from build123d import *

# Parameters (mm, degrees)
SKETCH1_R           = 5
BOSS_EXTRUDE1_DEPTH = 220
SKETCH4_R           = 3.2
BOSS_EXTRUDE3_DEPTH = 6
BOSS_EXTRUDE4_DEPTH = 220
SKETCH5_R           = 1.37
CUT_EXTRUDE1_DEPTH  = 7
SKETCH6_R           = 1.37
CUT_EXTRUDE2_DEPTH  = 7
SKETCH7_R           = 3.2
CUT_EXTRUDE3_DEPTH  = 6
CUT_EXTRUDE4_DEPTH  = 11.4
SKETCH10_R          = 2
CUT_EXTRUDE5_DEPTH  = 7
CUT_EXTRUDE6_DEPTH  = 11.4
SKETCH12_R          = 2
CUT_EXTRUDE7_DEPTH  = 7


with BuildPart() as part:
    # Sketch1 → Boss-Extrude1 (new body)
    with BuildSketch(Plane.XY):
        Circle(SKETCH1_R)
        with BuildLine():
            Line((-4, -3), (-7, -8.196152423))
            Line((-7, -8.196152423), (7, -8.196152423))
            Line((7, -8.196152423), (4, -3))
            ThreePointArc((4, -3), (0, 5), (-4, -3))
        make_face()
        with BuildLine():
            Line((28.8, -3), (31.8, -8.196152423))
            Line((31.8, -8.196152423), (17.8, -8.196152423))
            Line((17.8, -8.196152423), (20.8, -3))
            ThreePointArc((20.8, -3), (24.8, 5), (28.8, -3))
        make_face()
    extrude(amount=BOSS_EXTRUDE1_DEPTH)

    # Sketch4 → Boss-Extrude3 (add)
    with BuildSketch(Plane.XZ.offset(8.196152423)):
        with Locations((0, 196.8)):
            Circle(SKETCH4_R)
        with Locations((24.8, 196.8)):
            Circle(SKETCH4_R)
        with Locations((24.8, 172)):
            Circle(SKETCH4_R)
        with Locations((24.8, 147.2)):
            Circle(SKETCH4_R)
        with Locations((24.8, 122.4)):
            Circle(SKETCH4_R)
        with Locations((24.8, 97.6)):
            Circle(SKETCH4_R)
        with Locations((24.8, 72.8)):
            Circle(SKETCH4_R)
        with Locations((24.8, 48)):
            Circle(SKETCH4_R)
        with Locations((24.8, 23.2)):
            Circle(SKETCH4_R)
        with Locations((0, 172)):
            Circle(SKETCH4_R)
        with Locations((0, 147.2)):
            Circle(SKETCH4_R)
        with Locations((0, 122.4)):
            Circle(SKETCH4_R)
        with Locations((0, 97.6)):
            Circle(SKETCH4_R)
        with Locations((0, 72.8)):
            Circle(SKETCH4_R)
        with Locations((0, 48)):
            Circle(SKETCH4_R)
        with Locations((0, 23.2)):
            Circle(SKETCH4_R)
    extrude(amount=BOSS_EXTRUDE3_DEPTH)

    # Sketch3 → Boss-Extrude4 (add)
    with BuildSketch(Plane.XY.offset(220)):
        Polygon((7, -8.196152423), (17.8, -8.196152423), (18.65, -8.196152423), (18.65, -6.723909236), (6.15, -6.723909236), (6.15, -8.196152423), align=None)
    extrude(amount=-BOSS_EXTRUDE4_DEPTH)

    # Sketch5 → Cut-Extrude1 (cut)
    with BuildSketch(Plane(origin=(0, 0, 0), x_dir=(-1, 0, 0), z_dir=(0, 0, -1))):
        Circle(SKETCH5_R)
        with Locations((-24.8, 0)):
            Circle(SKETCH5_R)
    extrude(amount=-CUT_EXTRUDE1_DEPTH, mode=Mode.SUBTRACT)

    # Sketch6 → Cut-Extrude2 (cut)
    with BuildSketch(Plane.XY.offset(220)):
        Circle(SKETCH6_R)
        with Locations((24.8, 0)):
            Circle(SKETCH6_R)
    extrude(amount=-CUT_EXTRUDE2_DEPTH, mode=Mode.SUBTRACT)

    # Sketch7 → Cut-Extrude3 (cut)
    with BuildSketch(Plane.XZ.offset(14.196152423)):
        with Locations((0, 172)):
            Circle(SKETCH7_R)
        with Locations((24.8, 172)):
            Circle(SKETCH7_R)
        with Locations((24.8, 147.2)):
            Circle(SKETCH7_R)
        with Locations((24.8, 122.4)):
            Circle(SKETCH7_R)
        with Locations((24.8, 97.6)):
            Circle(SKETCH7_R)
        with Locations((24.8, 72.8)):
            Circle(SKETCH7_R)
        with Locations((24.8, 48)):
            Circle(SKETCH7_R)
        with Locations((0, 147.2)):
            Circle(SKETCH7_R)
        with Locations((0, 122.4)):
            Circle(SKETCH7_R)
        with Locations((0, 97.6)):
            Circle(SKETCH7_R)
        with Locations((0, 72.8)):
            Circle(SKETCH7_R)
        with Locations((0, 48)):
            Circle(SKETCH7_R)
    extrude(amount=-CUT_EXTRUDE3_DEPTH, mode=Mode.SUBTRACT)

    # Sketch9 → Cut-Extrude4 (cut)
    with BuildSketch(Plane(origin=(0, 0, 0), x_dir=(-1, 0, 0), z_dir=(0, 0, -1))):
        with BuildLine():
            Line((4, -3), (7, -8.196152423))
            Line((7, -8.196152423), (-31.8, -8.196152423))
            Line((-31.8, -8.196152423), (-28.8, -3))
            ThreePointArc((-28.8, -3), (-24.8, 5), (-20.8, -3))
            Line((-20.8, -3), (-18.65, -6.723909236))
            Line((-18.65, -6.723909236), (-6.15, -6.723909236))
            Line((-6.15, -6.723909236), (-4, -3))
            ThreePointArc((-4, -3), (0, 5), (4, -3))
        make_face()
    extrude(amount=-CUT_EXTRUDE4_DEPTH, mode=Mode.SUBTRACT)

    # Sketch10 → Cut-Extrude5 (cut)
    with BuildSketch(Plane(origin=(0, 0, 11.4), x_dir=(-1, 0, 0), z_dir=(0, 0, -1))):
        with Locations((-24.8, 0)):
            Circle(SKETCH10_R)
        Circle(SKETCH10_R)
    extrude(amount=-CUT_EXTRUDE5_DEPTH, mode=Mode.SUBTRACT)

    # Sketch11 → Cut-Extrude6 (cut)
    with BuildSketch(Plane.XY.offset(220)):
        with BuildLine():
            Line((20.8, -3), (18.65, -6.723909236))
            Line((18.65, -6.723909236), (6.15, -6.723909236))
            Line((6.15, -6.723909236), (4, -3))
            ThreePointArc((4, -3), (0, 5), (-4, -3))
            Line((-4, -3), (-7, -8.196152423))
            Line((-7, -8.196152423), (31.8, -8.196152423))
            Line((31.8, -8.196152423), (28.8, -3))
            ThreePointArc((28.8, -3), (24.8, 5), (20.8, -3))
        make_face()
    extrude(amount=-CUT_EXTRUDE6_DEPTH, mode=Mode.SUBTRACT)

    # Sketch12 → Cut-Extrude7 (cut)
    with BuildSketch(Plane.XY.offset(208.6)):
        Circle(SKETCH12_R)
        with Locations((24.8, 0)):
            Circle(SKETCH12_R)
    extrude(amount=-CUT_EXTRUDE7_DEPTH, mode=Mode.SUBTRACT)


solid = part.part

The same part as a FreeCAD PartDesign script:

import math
import FreeCAD as App
import Part
import Sketcher
from FreeCAD import Vector
Q = App.Units.Quantity

doc = App.newDocument("Part")
body = doc.addObject("PartDesign::Body", "Body")
body.AllowCompound = True

# Sketch on XY plane
sketch1 = body.newObject("Sketcher::SketchObject", "Sketch")
sketch1.AttachmentSupport = (doc.getObject("XY_Plane"), [""])
sketch1.MapMode = "FlatFace"
sketch1.addGeometry(Part.LineSegment(Vector(-4, -3, 0), Vector(-7, -8, 0)), False)
sketch1.addGeometry(Part.LineSegment(Vector(-7, -8, 0), Vector(7, -8, 0)), False)
sketch1.addGeometry(Part.LineSegment(Vector(7, -8, 0), Vector(4, -3, 0)), False)
sketch1.addGeometry(Part.ArcOfCircle(Part.Circle(Vector(0, 0, 0), Vector(0, 0, 1), 5), math.radians(-37), math.radians(217)), False)
sketch1.addGeometry(Part.LineSegment(Vector(32, -8, 0), Vector(29, -3, 0)), False)
sketch1.addGeometry(Part.ArcOfCircle(Part.Circle(Vector(25, 0, 0), Vector(0, 0, 1), 5), math.radians(-37), math.radians(217)), False)
sketch1.addGeometry(Part.LineSegment(Vector(21, -3, 0), Vector(18, -8, 0)), False)
sketch1.addGeometry(Part.LineSegment(Vector(18, -8, 0), Vector(32, -8, 0)), False)
sketch1.addConstraint(Sketcher.Constraint("Coincident", 0, 2, 1, 1))
sketch1.addConstraint(Sketcher.Constraint("Coincident", 1, 2, 2, 1))
sketch1.addConstraint(Sketcher.Constraint("Coincident", 2, 2, 3, 1))
sketch1.addConstraint(Sketcher.Constraint("Coincident", 3, 2, 0, 1))
sketch1.addConstraint(Sketcher.Constraint("Coincident", 4, 2, 5, 1))
sketch1.addConstraint(Sketcher.Constraint("Coincident", 5, 2, 6, 1))
sketch1.addConstraint(Sketcher.Constraint("Coincident", 6, 2, 7, 1))
sketch1.addConstraint(Sketcher.Constraint("Coincident", 7, 2, 4, 1))
sketch1.addConstraint(Sketcher.Constraint("Horizontal", 1))
sketch1.addConstraint(Sketcher.Constraint("Horizontal", 7))
sketch1.addConstraint(Sketcher.Constraint("Coincident", 3, 3, -1, 1))
sketch1.addConstraint(Sketcher.Constraint("Equal", 3, 5))
sketch1.addConstraint(Sketcher.Constraint("PointOnObject", 5, 3, -1))
sketch1.addConstraint(Sketcher.Constraint("Parallel", 2, 4))
sketch1.addConstraint(Sketcher.Constraint("Parallel", 0, 6))
sketch1.addConstraint(Sketcher.Constraint("Horizontal", 2, 2, 3, 2))
sketch1.addConstraint(Sketcher.Constraint("Horizontal", 3, 2, 4, 2))
sketch1.addConstraint(Sketcher.Constraint("Horizontal", 4, 2, 5, 2))
sketch1.addConstraint(Sketcher.Constraint("Horizontal", 1, 2, 6, 2))
sketch1.addConstraint(Sketcher.Constraint("Equal", 0, 2))
sketch1.addConstraint(Sketcher.Constraint("Radius", 3, Q("5 mm")))
sketch1.addConstraint(Sketcher.Constraint("DistanceX", 1, 1, 1, 2, Q("14 mm")))
sketch1.addConstraint(Sketcher.Constraint("Angle", 0, Q("-120 deg")))
sketch1.addConstraint(Sketcher.Constraint("Distance", 0, Q("6 mm")))
sketch1.addConstraint(Sketcher.Constraint("DistanceX", -1, 1, 5, 3, Q("24.8 mm")))
pad1 = body.newObject("PartDesign::Pad", "Pad")
pad1.Profile = sketch1
pad1.Length = 220

# Sketch on XZ plane
sketch2 = body.newObject("Sketcher::SketchObject", "Sketch001")
sketch2.AttachmentSupport = (doc.getObject("XZ_Plane"), [""])
sketch2.MapMode = "FlatFace"
sketch2.AttachmentOffset = App.Placement(Vector(0, 0, 8.196152), App.Rotation())
sketch2.addGeometry(Part.Circle(Vector(0, 196.8, 0), Vector(0, 0, 1), 3.2), False)
sketch2.addGeometry(Part.Circle(Vector(24.8, 196.8, 0), Vector(0, 0, 1), 3.2), False)
sketch2.addGeometry(Part.Circle(Vector(24.8, 172, 0), Vector(0, 0, 1), 3.2), False)
sketch2.addGeometry(Part.Circle(Vector(24.8, 147.2, 0), Vector(0, 0, 1), 3.2), False)
sketch2.addGeometry(Part.Circle(Vector(24.8, 122.4, 0), Vector(0, 0, 1), 3.2), False)
sketch2.addGeometry(Part.Circle(Vector(24.8, 97.6, 0), Vector(0, 0, 1), 3.2), False)
sketch2.addGeometry(Part.Circle(Vector(24.8, 72.8, 0), Vector(0, 0, 1), 3.2), False)
sketch2.addGeometry(Part.Circle(Vector(24.8, 48, 0), Vector(0, 0, 1), 3.2), False)
sketch2.addGeometry(Part.Circle(Vector(24.8, 23.2, 0), Vector(0, 0, 1), 3.2), False)
sketch2.addGeometry(Part.Circle(Vector(0, 172, 0), Vector(0, 0, 1), 3.2), False)
sketch2.addGeometry(Part.Circle(Vector(0, 147.2, 0), Vector(0, 0, 1), 3.2), False)
sketch2.addGeometry(Part.Circle(Vector(0, 122.4, 0), Vector(0, 0, 1), 3.2), False)
sketch2.addGeometry(Part.Circle(Vector(0, 97.6, 0), Vector(0, 0, 1), 3.2), False)
sketch2.addGeometry(Part.Circle(Vector(0, 72.8, 0), Vector(0, 0, 1), 3.2), False)
sketch2.addGeometry(Part.Circle(Vector(0, 48, 0), Vector(0, 0, 1), 3.2), False)
sketch2.addGeometry(Part.Circle(Vector(0, 23.2, 0), Vector(0, 0, 1), 3.2), False)
sketch2.addConstraint(Sketcher.Constraint("Equal", 0, 1))
sketch2.addConstraint(Sketcher.Constraint("Equal", 1, 2))
sketch2.addConstraint(Sketcher.Constraint("Equal", 2, 3))
sketch2.addConstraint(Sketcher.Constraint("Equal", 3, 4))
sketch2.addConstraint(Sketcher.Constraint("Equal", 4, 5))
sketch2.addConstraint(Sketcher.Constraint("Equal", 5, 6))
sketch2.addConstraint(Sketcher.Constraint("Equal", 6, 7))
sketch2.addConstraint(Sketcher.Constraint("Equal", 7, 8))
sketch2.addConstraint(Sketcher.Constraint("Equal", 8, 9))
sketch2.addConstraint(Sketcher.Constraint("Equal", 9, 10))
sketch2.addConstraint(Sketcher.Constraint("Equal", 10, 11))
sketch2.addConstraint(Sketcher.Constraint("Equal", 11, 12))
sketch2.addConstraint(Sketcher.Constraint("Equal", 12, 13))
sketch2.addConstraint(Sketcher.Constraint("Equal", 13, 14))
sketch2.addConstraint(Sketcher.Constraint("Equal", 14, 15))
sketch2.addConstraint(Sketcher.Constraint("PointOnObject", 0, 3, -2))
sketch2.addConstraint(Sketcher.Constraint("PointOnObject", 9, 3, -2))
sketch2.addConstraint(Sketcher.Constraint("PointOnObject", 10, 3, -2))
sketch2.addConstraint(Sketcher.Constraint("PointOnObject", 11, 3, -2))
sketch2.addConstraint(Sketcher.Constraint("PointOnObject", 12, 3, -2))
sketch2.addConstraint(Sketcher.Constraint("PointOnObject", 13, 3, -2))
sketch2.addConstraint(Sketcher.Constraint("PointOnObject", 14, 3, -2))
sketch2.addConstraint(Sketcher.Constraint("PointOnObject", 15, 3, -2))
sketch2.addConstraint(Sketcher.Constraint("Horizontal", 0, 3, 1, 3))
sketch2.addConstraint(Sketcher.Constraint("Horizontal", 2, 3, 9, 3))
sketch2.addConstraint(Sketcher.Constraint("Horizontal", 3, 3, 10, 3))
sketch2.addConstraint(Sketcher.Constraint("Horizontal", 4, 3, 11, 3))
sketch2.addConstraint(Sketcher.Constraint("Horizontal", 5, 3, 12, 3))
sketch2.addConstraint(Sketcher.Constraint("Horizontal", 6, 3, 13, 3))
sketch2.addConstraint(Sketcher.Constraint("Horizontal", 7, 3, 14, 3))
sketch2.addConstraint(Sketcher.Constraint("Horizontal", 8, 3, 15, 3))
sketch2.addConstraint(Sketcher.Constraint("Vertical", 1, 3, 2, 3))
sketch2.addConstraint(Sketcher.Constraint("Vertical", 2, 3, 3, 3))
sketch2.addConstraint(Sketcher.Constraint("Vertical", 3, 3, 4, 3))
sketch2.addConstraint(Sketcher.Constraint("Vertical", 4, 3, 5, 3))
sketch2.addConstraint(Sketcher.Constraint("Vertical", 5, 3, 6, 3))
sketch2.addConstraint(Sketcher.Constraint("Vertical", 6, 3, 7, 3))
sketch2.addConstraint(Sketcher.Constraint("Vertical", 7, 3, 8, 3))
sketch2.addConstraint(Sketcher.Constraint("Diameter", 0, Q("6.4 mm")))
sketch2.addConstraint(Sketcher.Constraint("DistanceY", -1, 1, 2, 3, Q("172 mm")))
sketch2.addConstraint(Sketcher.Constraint("DistanceY", -1, 1, 7, 3, Q("48 mm")))
sketch2.addConstraint(Sketcher.Constraint("DistanceY", 6, 3, 1, 3, Q("124 mm")))
sketch2.addConstraint(Sketcher.Constraint("DistanceY", 8, 3, 3, 3, Q("124 mm")))
sketch2.addConstraint(Sketcher.Constraint("DistanceY", -1, 1, 0, 3, Q("196.8 mm")))
sketch2.addConstraint(Sketcher.Constraint("DistanceX", -1, 1, 1, 3, Q("24.8 mm")))
sketch2.addConstraint(Sketcher.Constraint("DistanceY", -1, 1, 3, 3, Q("147.2 mm")))
sketch2.addConstraint(Sketcher.Constraint("DistanceY", -1, 1, 4, 3, Q("122.4 mm")))
sketch2.addConstraint(Sketcher.Constraint("DistanceY", -1, 1, 5, 3, Q("97.6 mm")))
pad2 = body.newObject("PartDesign::Pad", "Pad001")
pad2.Profile = sketch2
pad2.Length = 6

# Sketch on XY plane
sketch3 = body.newObject("Sketcher::SketchObject", "Sketch002")
sketch3.AttachmentSupport = (doc.getObject("XY_Plane"), [""])
sketch3.MapMode = "FlatFace"
sketch3.AttachmentOffset = App.Placement(Vector(0, 0, 220), App.Rotation())
sketch3.addGeometry(Part.LineSegment(Vector(18.6, -8.2, 0), Vector(18.6, -6.7, 0)), False)
sketch3.addGeometry(Part.LineSegment(Vector(18.6, -6.7, 0), Vector(6.2, -6.7, 0)), False)
sketch3.addGeometry(Part.LineSegment(Vector(6.2, -6.7, 0), Vector(6.2, -8.2, 0)), False)
sketch3.addGeometry(Part.LineSegment(Vector(6.2, -8.2, 0), Vector(18.6, -8.2, 0)), False)
sketch3.addConstraint(Sketcher.Constraint("Coincident", 0, 2, 1, 1))
sketch3.addConstraint(Sketcher.Constraint("Coincident", 1, 2, 2, 1))
sketch3.addConstraint(Sketcher.Constraint("Coincident", 2, 2, 3, 1))
sketch3.addConstraint(Sketcher.Constraint("Coincident", 3, 2, 0, 1))
sketch3.addConstraint(Sketcher.Constraint("Vertical", 0))
sketch3.addConstraint(Sketcher.Constraint("Horizontal", 1))
sketch3.addConstraint(Sketcher.Constraint("Vertical", 2))
sketch3.addConstraint(Sketcher.Constraint("Horizontal", 3))
sketch3.addConstraint(Sketcher.Constraint("DistanceX", 1, 2, 1, 1, Q("12.5 mm")))
sketch3.addConstraint(Sketcher.Constraint("DistanceX", -1, 1, 0, 2, Q("18.65 mm")))
sketch3.addConstraint(Sketcher.Constraint("DistanceY", 0, 1, 0, 2, Q("1.472243 mm")))
sketch3.addConstraint(Sketcher.Constraint("DistanceY", 0, 2, -1, 1, Q("6.723909 mm")))
pad3 = body.newObject("PartDesign::Pad", "Pad002")
pad3.Profile = sketch3
pad3.Length = 220
pad3.Reversed = True

# Sketch on XY plane
sketch4 = body.newObject("Sketcher::SketchObject", "Sketch003")
sketch4.AttachmentSupport = (doc.getObject("XY_Plane"), [""])
sketch4.MapMode = "FlatFace"
sketch4.addGeometry(Part.Circle(Vector(0, 0, 0), Vector(0, 0, 1), 1.4), False)
sketch4.addGeometry(Part.Circle(Vector(24.8, 0, 0), Vector(0, 0, 1), 1.4), False)
sketch4.addConstraint(Sketcher.Constraint("Coincident", 0, 3, -1, 1))
sketch4.addConstraint(Sketcher.Constraint("Equal", 0, 1))
sketch4.addConstraint(Sketcher.Constraint("PointOnObject", 1, 3, -1))
sketch4.addConstraint(Sketcher.Constraint("Diameter", 0, Q("2.74 mm")))
sketch4.addConstraint(Sketcher.Constraint("DistanceX", -1, 1, 1, 3, Q("24.8 mm")))
pocket1 = body.newObject("PartDesign::Pocket", "Pocket")
pocket1.Profile = sketch4
pocket1.Length = 7
pocket1.Reversed = True

# Sketch on XY plane
sketch5 = body.newObject("Sketcher::SketchObject", "Sketch004")
sketch5.AttachmentSupport = (doc.getObject("XY_Plane"), [""])
sketch5.MapMode = "FlatFace"
sketch5.AttachmentOffset = App.Placement(Vector(0, 0, 220), App.Rotation())
sketch5.addGeometry(Part.Circle(Vector(0, 0, 0), Vector(0, 0, 1), 1.4), False)
sketch5.addGeometry(Part.Circle(Vector(24.8, 0, 0), Vector(0, 0, 1), 1.4), False)
sketch5.addConstraint(Sketcher.Constraint("Coincident", 0, 3, -1, 1))
sketch5.addConstraint(Sketcher.Constraint("Equal", 0, 1))
sketch5.addConstraint(Sketcher.Constraint("PointOnObject", 1, 3, -1))
sketch5.addConstraint(Sketcher.Constraint("Diameter", 0, Q("2.74 mm")))
sketch5.addConstraint(Sketcher.Constraint("DistanceX", -1, 1, 1, 3, Q("24.8 mm")))
pocket2 = body.newObject("PartDesign::Pocket", "Pocket001")
pocket2.Profile = sketch5
pocket2.Length = 7

# Sketch on XZ plane
sketch6 = body.newObject("Sketcher::SketchObject", "Sketch005")
sketch6.AttachmentSupport = (doc.getObject("XZ_Plane"), [""])
sketch6.MapMode = "FlatFace"
sketch6.AttachmentOffset = App.Placement(Vector(0, 0, 14.196152), App.Rotation())
sketch6.addGeometry(Part.Circle(Vector(0, 172, 0), Vector(0, 0, 1), 3.2), False)
sketch6.addGeometry(Part.Circle(Vector(24.8, 172, 0), Vector(0, 0, 1), 3.2), False)
sketch6.addGeometry(Part.Circle(Vector(24.8, 147.2, 0), Vector(0, 0, 1), 3.2), False)
sketch6.addGeometry(Part.Circle(Vector(24.8, 122.4, 0), Vector(0, 0, 1), 3.2), False)
sketch6.addGeometry(Part.Circle(Vector(24.8, 97.6, 0), Vector(0, 0, 1), 3.2), False)
sketch6.addGeometry(Part.Circle(Vector(24.8, 72.8, 0), Vector(0, 0, 1), 3.2), False)
sketch6.addGeometry(Part.Circle(Vector(24.8, 48, 0), Vector(0, 0, 1), 3.2), False)
sketch6.addGeometry(Part.Circle(Vector(0, 147.2, 0), Vector(0, 0, 1), 3.2), False)
sketch6.addGeometry(Part.Circle(Vector(0, 122.4, 0), Vector(0, 0, 1), 3.2), False)
sketch6.addGeometry(Part.Circle(Vector(0, 97.6, 0), Vector(0, 0, 1), 3.2), False)
sketch6.addGeometry(Part.Circle(Vector(0, 72.8, 0), Vector(0, 0, 1), 3.2), False)
sketch6.addGeometry(Part.Circle(Vector(0, 48, 0), Vector(0, 0, 1), 3.2), False)
sketch6.addConstraint(Sketcher.Constraint("Equal", 0, 1))
sketch6.addConstraint(Sketcher.Constraint("Equal", 1, 2))
sketch6.addConstraint(Sketcher.Constraint("Equal", 2, 3))
sketch6.addConstraint(Sketcher.Constraint("Equal", 3, 4))
sketch6.addConstraint(Sketcher.Constraint("Equal", 4, 5))
sketch6.addConstraint(Sketcher.Constraint("Equal", 5, 6))
sketch6.addConstraint(Sketcher.Constraint("Equal", 6, 7))
sketch6.addConstraint(Sketcher.Constraint("Equal", 7, 8))
sketch6.addConstraint(Sketcher.Constraint("Equal", 8, 9))
sketch6.addConstraint(Sketcher.Constraint("Equal", 9, 10))
sketch6.addConstraint(Sketcher.Constraint("Equal", 10, 11))
sketch6.addConstraint(Sketcher.Constraint("PointOnObject", 0, 3, -2))
sketch6.addConstraint(Sketcher.Constraint("PointOnObject", 7, 3, -2))
sketch6.addConstraint(Sketcher.Constraint("PointOnObject", 8, 3, -2))
sketch6.addConstraint(Sketcher.Constraint("PointOnObject", 9, 3, -2))
sketch6.addConstraint(Sketcher.Constraint("PointOnObject", 10, 3, -2))
sketch6.addConstraint(Sketcher.Constraint("PointOnObject", 11, 3, -2))
sketch6.addConstraint(Sketcher.Constraint("Horizontal", 0, 3, 1, 3))
sketch6.addConstraint(Sketcher.Constraint("Horizontal", 2, 3, 7, 3))
sketch6.addConstraint(Sketcher.Constraint("Horizontal", 3, 3, 8, 3))
sketch6.addConstraint(Sketcher.Constraint("Horizontal", 4, 3, 9, 3))
sketch6.addConstraint(Sketcher.Constraint("Horizontal", 5, 3, 10, 3))
sketch6.addConstraint(Sketcher.Constraint("Horizontal", 6, 3, 11, 3))
sketch6.addConstraint(Sketcher.Constraint("Vertical", 1, 3, 2, 3))
sketch6.addConstraint(Sketcher.Constraint("Vertical", 2, 3, 3, 3))
sketch6.addConstraint(Sketcher.Constraint("Vertical", 3, 3, 4, 3))
sketch6.addConstraint(Sketcher.Constraint("Vertical", 4, 3, 5, 3))
sketch6.addConstraint(Sketcher.Constraint("Vertical", 5, 3, 6, 3))
sketch6.addConstraint(Sketcher.Constraint("Diameter", 0, Q("6.4 mm")))
sketch6.addConstraint(Sketcher.Constraint("DistanceY", -1, 1, 0, 3, Q("172 mm")))
sketch6.addConstraint(Sketcher.Constraint("DistanceY", -1, 1, 6, 3, Q("48 mm")))
sketch6.addConstraint(Sketcher.Constraint("DistanceX", -1, 1, 1, 3, Q("24.8 mm")))
sketch6.addConstraint(Sketcher.Constraint("DistanceY", -1, 1, 2, 3, Q("147.2 mm")))
sketch6.addConstraint(Sketcher.Constraint("DistanceY", -1, 1, 3, 3, Q("122.4 mm")))
sketch6.addConstraint(Sketcher.Constraint("DistanceY", -1, 1, 4, 3, Q("97.6 mm")))
sketch6.addConstraint(Sketcher.Constraint("DistanceY", -1, 1, 5, 3, Q("72.8 mm")))
pocket3 = body.newObject("PartDesign::Pocket", "Pocket002")
pocket3.Profile = sketch6
pocket3.Length = 6

# Sketch on XY plane
sketch7 = body.newObject("Sketcher::SketchObject", "Sketch006")
sketch7.AttachmentSupport = (doc.getObject("XY_Plane"), [""])
sketch7.MapMode = "FlatFace"
sketch7.addGeometry(Part.LineSegment(Vector(-7, -8.2, 0), Vector(-4, -3, 0)), False)
sketch7.addGeometry(Part.ArcOfCircle(Part.Circle(Vector(0, 0, 0), Vector(0, 0, 1), 5), math.radians(-37), math.radians(217)), False)
sketch7.addGeometry(Part.LineSegment(Vector(4, -3, 0), Vector(6.2, -6.7, 0)), False)
sketch7.addGeometry(Part.LineSegment(Vector(6.2, -6.7, 0), Vector(18.6, -6.7, 0)), False)
sketch7.addGeometry(Part.LineSegment(Vector(18.6, -6.7, 0), Vector(20.8, -3, 0)), False)
sketch7.addGeometry(Part.ArcOfCircle(Part.Circle(Vector(24.8, 0, 0), Vector(0, 0, 1), 5), math.radians(-37), math.radians(217)), False)
sketch7.addGeometry(Part.LineSegment(Vector(28.8, -3, 0), Vector(31.8, -8.2, 0)), False)
sketch7.addGeometry(Part.LineSegment(Vector(31.8, -8.2, 0), Vector(-7, -8.2, 0)), False)
sketch7.addConstraint(Sketcher.Constraint("Coincident", 0, 2, 1, 2))
sketch7.addConstraint(Sketcher.Constraint("Coincident", 1, 1, 2, 1))
sketch7.addConstraint(Sketcher.Constraint("Coincident", 2, 2, 3, 1))
sketch7.addConstraint(Sketcher.Constraint("Coincident", 3, 2, 4, 1))
sketch7.addConstraint(Sketcher.Constraint("Coincident", 4, 2, 5, 2))
sketch7.addConstraint(Sketcher.Constraint("Coincident", 5, 1, 6, 1))
sketch7.addConstraint(Sketcher.Constraint("Coincident", 6, 2, 7, 1))
sketch7.addConstraint(Sketcher.Constraint("Coincident", 7, 2, 0, 1))
sketch7.addConstraint(Sketcher.Constraint("Horizontal", 3))
sketch7.addConstraint(Sketcher.Constraint("Horizontal", 7))
sketch7.addConstraint(Sketcher.Constraint("Coincident", 1, 3, -1, 1))
sketch7.addConstraint(Sketcher.Constraint("Equal", 1, 5))
sketch7.addConstraint(Sketcher.Constraint("PointOnObject", 5, 3, -1))
sketch7.addConstraint(Sketcher.Constraint("Parallel", 0, 4))
sketch7.addConstraint(Sketcher.Constraint("Parallel", 2, 6))
sketch7.addConstraint(Sketcher.Constraint("Horizontal", 0, 2, 1, 1))
sketch7.addConstraint(Sketcher.Constraint("Horizontal", 1, 1, 4, 2))
sketch7.addConstraint(Sketcher.Constraint("Horizontal", 4, 2, 5, 1))
sketch7.addConstraint(Sketcher.Constraint("Equal", 2, 4))
sketch7.addConstraint(Sketcher.Constraint("Radius", 1, Q("5 mm")))
sketch7.addConstraint(Sketcher.Constraint("Angle", 0, Q("60 deg")))
sketch7.addConstraint(Sketcher.Constraint("Distance", 0, Q("6 mm")))
sketch7.addConstraint(Sketcher.Constraint("DistanceX", 3, 1, 3, 2, Q("12.5 mm")))
sketch7.addConstraint(Sketcher.Constraint("DistanceX", 7, 2, 7, 1, Q("38.8 mm")))
sketch7.addConstraint(Sketcher.Constraint("DistanceX", 0, 2, -1, 1, Q("4 mm")))
pocket4 = body.newObject("PartDesign::Pocket", "Pocket003")
pocket4.Profile = sketch7
pocket4.Length = 11.4
pocket4.Reversed = True

# Sketch on XY plane
sketch8 = body.newObject("Sketcher::SketchObject", "Sketch007")
sketch8.AttachmentSupport = (doc.getObject("XY_Plane"), [""])
sketch8.MapMode = "FlatFace"
sketch8.AttachmentOffset = App.Placement(Vector(0, 0, 11.4), App.Rotation())
sketch8.addGeometry(Part.Circle(Vector(24.8, 0, 0), Vector(0, 0, 1), 2), False)
sketch8.addGeometry(Part.Circle(Vector(0, 0, 0), Vector(0, 0, 1), 2), False)
sketch8.addConstraint(Sketcher.Constraint("Coincident", 1, 3, -1, 1))
sketch8.addConstraint(Sketcher.Constraint("Equal", 0, 1))
sketch8.addConstraint(Sketcher.Constraint("PointOnObject", 0, 3, -1))
sketch8.addConstraint(Sketcher.Constraint("Diameter", 0, Q("4 mm")))
sketch8.addConstraint(Sketcher.Constraint("DistanceX", -1, 1, 0, 3, Q("24.8 mm")))
pocket5 = body.newObject("PartDesign::Pocket", "Pocket004")
pocket5.Profile = sketch8
pocket5.Length = 7
pocket5.Reversed = True

# Sketch on XY plane
sketch9 = body.newObject("Sketcher::SketchObject", "Sketch008")
sketch9.AttachmentSupport = (doc.getObject("XY_Plane"), [""])
sketch9.MapMode = "FlatFace"
sketch9.AttachmentOffset = App.Placement(Vector(0, 0, 220), App.Rotation())
sketch9.addGeometry(Part.LineSegment(Vector(20.8, -3, 0), Vector(18.6, -6.7, 0)), False)
sketch9.addGeometry(Part.LineSegment(Vector(18.6, -6.7, 0), Vector(6.2, -6.7, 0)), False)
sketch9.addGeometry(Part.LineSegment(Vector(6.2, -6.7, 0), Vector(4, -3, 0)), False)
sketch9.addGeometry(Part.ArcOfCircle(Part.Circle(Vector(0, 0, 0), Vector(0, 0, 1), 5), math.radians(-37), math.radians(217)), False)
sketch9.addGeometry(Part.LineSegment(Vector(-4, -3, 0), Vector(-7, -8.2, 0)), False)
sketch9.addGeometry(Part.LineSegment(Vector(-7, -8.2, 0), Vector(31.8, -8.2, 0)), False)
sketch9.addGeometry(Part.LineSegment(Vector(31.8, -8.2, 0), Vector(28.8, -3, 0)), False)
sketch9.addGeometry(Part.ArcOfCircle(Part.Circle(Vector(24.8, 0, 0), Vector(0, 0, 1), 5), math.radians(-37), math.radians(217)), False)
sketch9.addConstraint(Sketcher.Constraint("Coincident", 0, 2, 1, 1))
sketch9.addConstraint(Sketcher.Constraint("Coincident", 1, 2, 2, 1))
sketch9.addConstraint(Sketcher.Constraint("Coincident", 2, 2, 3, 1))
sketch9.addConstraint(Sketcher.Constraint("Coincident", 3, 2, 4, 1))
sketch9.addConstraint(Sketcher.Constraint("Coincident", 4, 2, 5, 1))
sketch9.addConstraint(Sketcher.Constraint("Coincident", 5, 2, 6, 1))
sketch9.addConstraint(Sketcher.Constraint("Coincident", 6, 2, 7, 1))
sketch9.addConstraint(Sketcher.Constraint("Coincident", 7, 2, 0, 1))
sketch9.addConstraint(Sketcher.Constraint("Horizontal", 1))
sketch9.addConstraint(Sketcher.Constraint("Horizontal", 5))
sketch9.addConstraint(Sketcher.Constraint("Coincident", 3, 3, -1, 1))
sketch9.addConstraint(Sketcher.Constraint("Equal", 3, 7))
sketch9.addConstraint(Sketcher.Constraint("PointOnObject", 7, 3, -1))
sketch9.addConstraint(Sketcher.Constraint("Parallel", 0, 4))
sketch9.addConstraint(Sketcher.Constraint("Parallel", 2, 6))
sketch9.addConstraint(Sketcher.Constraint("Horizontal", 2, 2, 3, 2))
sketch9.addConstraint(Sketcher.Constraint("Horizontal", 3, 2, 6, 2))
sketch9.addConstraint(Sketcher.Constraint("Horizontal", 6, 2, 7, 2))
sketch9.addConstraint(Sketcher.Constraint("Equal", 0, 2))
sketch9.addConstraint(Sketcher.Constraint("Radius", 3, Q("5 mm")))
sketch9.addConstraint(Sketcher.Constraint("Angle", 0, Q("-120 deg")))
sketch9.addConstraint(Sketcher.Constraint("Distance", 4, Q("6 mm")))
sketch9.addConstraint(Sketcher.Constraint("DistanceX", 1, 2, 1, 1, Q("12.5 mm")))
sketch9.addConstraint(Sketcher.Constraint("DistanceX", 5, 1, 5, 2, Q("38.8 mm")))
sketch9.addConstraint(Sketcher.Constraint("DistanceX", -1, 1, 2, 2, Q("4 mm")))
pocket6 = body.newObject("PartDesign::Pocket", "Pocket005")
pocket6.Profile = sketch9
pocket6.Length = 11.4

# Sketch on XY plane
sketch10 = body.newObject("Sketcher::SketchObject", "Sketch009")
sketch10.AttachmentSupport = (doc.getObject("XY_Plane"), [""])
sketch10.MapMode = "FlatFace"
sketch10.AttachmentOffset = App.Placement(Vector(0, 0, 208.6), App.Rotation())
sketch10.addGeometry(Part.Circle(Vector(0, 0, 0), Vector(0, 0, 1), 2), False)
sketch10.addGeometry(Part.Circle(Vector(24.8, 0, 0), Vector(0, 0, 1), 2), False)
sketch10.addConstraint(Sketcher.Constraint("Coincident", 0, 3, -1, 1))
sketch10.addConstraint(Sketcher.Constraint("Equal", 0, 1))
sketch10.addConstraint(Sketcher.Constraint("PointOnObject", 1, 3, -1))
sketch10.addConstraint(Sketcher.Constraint("Diameter", 0, Q("4 mm")))
sketch10.addConstraint(Sketcher.Constraint("DistanceX", -1, 1, 1, 3, Q("24.8 mm")))
pocket7 = body.newObject("PartDesign::Pocket", "Pocket006")
pocket7.Profile = sketch10
pocket7.Length = 7

doc.recompute()
